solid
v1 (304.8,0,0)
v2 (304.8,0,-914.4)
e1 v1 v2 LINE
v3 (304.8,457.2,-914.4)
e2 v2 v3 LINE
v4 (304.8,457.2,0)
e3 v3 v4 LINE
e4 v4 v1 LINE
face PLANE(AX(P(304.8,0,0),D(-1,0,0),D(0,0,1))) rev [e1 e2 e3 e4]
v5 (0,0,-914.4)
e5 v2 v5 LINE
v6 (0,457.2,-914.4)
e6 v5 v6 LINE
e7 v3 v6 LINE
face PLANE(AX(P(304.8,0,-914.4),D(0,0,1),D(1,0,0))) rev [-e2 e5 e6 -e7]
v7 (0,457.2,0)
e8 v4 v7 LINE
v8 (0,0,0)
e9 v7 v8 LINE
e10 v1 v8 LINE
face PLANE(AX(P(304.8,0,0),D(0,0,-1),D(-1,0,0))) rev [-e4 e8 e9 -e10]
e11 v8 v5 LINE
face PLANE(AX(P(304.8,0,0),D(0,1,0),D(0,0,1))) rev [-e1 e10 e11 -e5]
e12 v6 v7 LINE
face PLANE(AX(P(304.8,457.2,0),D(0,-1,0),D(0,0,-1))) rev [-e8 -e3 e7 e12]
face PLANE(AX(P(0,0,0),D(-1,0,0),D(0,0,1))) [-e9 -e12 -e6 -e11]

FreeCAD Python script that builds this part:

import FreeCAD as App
import Part
import Sketcher

V = App.Vector
Q = App.Units.Quantity


def add_polygon(sketch, points):
    """Adds a closed chain of lines whose ends are joined by coincident constraints."""
    first, n = sketch.GeometryCount, len(points)
    for a, b in zip(points, points[1:] + points[:1]):
        sketch.addGeometry(Part.LineSegment(App.Vector(*a, 0), App.Vector(*b, 0)), False)
    for i in range(n):
        sketch.addConstraint(Sketcher.Constraint("Coincident", first + i, 2, first + (i + 1) % n, 1))

doc = App.newDocument("Part")
params = doc.addObject("Spreadsheet::Sheet", "Params")
for row, (alias, value) in enumerate([
    ("sketch1_width", "18 in"),
    ("sketch1_height", "36 in"),
    ("pad1_length", "12 in"),
], start=1):
    params.set(f"A{row}", alias)
    params.set(f"B{row}", "=" + value)
    params.setAlias(f"B{row}", alias)

body = doc.addObject("PartDesign::Body", "Body")

sketch1 = body.newObject("Sketcher::SketchObject", "Sketch")
sketch1.AttachmentSupport = (doc.getObject("YZ_Plane"), [""])
sketch1.MapMode = "FlatFace"
add_polygon(sketch1, [(457, 0), (0, 0), (0, -914), (457, -914)])
sketch1.addConstraint([
    Sketcher.Constraint("Horizontal", 0),
    Sketcher.Constraint("Vertical", 1),
    Sketcher.Constraint("Horizontal", 2),
    Sketcher.Constraint("Vertical", 3),
    Sketcher.Constraint("Coincident", 0, 2, -1, 1),
    Sketcher.Constraint("DistanceX", 0, 2, 0, 1, Q("18 in")),
    Sketcher.Constraint("DistanceY", 1, 2, 1, 1, Q("36 in")),
])
sketch1.setExpression("Constraints[9]", "Params.sketch1_width")
sketch1.setExpression("Constraints[10]", "Params.sketch1_height")
pad1 = body.newObject("PartDesign::Pad", "Pad")
pad1.Profile = sketch1
pad1.setExpression("Length", "Params.pad1_length")

doc.recompute()
